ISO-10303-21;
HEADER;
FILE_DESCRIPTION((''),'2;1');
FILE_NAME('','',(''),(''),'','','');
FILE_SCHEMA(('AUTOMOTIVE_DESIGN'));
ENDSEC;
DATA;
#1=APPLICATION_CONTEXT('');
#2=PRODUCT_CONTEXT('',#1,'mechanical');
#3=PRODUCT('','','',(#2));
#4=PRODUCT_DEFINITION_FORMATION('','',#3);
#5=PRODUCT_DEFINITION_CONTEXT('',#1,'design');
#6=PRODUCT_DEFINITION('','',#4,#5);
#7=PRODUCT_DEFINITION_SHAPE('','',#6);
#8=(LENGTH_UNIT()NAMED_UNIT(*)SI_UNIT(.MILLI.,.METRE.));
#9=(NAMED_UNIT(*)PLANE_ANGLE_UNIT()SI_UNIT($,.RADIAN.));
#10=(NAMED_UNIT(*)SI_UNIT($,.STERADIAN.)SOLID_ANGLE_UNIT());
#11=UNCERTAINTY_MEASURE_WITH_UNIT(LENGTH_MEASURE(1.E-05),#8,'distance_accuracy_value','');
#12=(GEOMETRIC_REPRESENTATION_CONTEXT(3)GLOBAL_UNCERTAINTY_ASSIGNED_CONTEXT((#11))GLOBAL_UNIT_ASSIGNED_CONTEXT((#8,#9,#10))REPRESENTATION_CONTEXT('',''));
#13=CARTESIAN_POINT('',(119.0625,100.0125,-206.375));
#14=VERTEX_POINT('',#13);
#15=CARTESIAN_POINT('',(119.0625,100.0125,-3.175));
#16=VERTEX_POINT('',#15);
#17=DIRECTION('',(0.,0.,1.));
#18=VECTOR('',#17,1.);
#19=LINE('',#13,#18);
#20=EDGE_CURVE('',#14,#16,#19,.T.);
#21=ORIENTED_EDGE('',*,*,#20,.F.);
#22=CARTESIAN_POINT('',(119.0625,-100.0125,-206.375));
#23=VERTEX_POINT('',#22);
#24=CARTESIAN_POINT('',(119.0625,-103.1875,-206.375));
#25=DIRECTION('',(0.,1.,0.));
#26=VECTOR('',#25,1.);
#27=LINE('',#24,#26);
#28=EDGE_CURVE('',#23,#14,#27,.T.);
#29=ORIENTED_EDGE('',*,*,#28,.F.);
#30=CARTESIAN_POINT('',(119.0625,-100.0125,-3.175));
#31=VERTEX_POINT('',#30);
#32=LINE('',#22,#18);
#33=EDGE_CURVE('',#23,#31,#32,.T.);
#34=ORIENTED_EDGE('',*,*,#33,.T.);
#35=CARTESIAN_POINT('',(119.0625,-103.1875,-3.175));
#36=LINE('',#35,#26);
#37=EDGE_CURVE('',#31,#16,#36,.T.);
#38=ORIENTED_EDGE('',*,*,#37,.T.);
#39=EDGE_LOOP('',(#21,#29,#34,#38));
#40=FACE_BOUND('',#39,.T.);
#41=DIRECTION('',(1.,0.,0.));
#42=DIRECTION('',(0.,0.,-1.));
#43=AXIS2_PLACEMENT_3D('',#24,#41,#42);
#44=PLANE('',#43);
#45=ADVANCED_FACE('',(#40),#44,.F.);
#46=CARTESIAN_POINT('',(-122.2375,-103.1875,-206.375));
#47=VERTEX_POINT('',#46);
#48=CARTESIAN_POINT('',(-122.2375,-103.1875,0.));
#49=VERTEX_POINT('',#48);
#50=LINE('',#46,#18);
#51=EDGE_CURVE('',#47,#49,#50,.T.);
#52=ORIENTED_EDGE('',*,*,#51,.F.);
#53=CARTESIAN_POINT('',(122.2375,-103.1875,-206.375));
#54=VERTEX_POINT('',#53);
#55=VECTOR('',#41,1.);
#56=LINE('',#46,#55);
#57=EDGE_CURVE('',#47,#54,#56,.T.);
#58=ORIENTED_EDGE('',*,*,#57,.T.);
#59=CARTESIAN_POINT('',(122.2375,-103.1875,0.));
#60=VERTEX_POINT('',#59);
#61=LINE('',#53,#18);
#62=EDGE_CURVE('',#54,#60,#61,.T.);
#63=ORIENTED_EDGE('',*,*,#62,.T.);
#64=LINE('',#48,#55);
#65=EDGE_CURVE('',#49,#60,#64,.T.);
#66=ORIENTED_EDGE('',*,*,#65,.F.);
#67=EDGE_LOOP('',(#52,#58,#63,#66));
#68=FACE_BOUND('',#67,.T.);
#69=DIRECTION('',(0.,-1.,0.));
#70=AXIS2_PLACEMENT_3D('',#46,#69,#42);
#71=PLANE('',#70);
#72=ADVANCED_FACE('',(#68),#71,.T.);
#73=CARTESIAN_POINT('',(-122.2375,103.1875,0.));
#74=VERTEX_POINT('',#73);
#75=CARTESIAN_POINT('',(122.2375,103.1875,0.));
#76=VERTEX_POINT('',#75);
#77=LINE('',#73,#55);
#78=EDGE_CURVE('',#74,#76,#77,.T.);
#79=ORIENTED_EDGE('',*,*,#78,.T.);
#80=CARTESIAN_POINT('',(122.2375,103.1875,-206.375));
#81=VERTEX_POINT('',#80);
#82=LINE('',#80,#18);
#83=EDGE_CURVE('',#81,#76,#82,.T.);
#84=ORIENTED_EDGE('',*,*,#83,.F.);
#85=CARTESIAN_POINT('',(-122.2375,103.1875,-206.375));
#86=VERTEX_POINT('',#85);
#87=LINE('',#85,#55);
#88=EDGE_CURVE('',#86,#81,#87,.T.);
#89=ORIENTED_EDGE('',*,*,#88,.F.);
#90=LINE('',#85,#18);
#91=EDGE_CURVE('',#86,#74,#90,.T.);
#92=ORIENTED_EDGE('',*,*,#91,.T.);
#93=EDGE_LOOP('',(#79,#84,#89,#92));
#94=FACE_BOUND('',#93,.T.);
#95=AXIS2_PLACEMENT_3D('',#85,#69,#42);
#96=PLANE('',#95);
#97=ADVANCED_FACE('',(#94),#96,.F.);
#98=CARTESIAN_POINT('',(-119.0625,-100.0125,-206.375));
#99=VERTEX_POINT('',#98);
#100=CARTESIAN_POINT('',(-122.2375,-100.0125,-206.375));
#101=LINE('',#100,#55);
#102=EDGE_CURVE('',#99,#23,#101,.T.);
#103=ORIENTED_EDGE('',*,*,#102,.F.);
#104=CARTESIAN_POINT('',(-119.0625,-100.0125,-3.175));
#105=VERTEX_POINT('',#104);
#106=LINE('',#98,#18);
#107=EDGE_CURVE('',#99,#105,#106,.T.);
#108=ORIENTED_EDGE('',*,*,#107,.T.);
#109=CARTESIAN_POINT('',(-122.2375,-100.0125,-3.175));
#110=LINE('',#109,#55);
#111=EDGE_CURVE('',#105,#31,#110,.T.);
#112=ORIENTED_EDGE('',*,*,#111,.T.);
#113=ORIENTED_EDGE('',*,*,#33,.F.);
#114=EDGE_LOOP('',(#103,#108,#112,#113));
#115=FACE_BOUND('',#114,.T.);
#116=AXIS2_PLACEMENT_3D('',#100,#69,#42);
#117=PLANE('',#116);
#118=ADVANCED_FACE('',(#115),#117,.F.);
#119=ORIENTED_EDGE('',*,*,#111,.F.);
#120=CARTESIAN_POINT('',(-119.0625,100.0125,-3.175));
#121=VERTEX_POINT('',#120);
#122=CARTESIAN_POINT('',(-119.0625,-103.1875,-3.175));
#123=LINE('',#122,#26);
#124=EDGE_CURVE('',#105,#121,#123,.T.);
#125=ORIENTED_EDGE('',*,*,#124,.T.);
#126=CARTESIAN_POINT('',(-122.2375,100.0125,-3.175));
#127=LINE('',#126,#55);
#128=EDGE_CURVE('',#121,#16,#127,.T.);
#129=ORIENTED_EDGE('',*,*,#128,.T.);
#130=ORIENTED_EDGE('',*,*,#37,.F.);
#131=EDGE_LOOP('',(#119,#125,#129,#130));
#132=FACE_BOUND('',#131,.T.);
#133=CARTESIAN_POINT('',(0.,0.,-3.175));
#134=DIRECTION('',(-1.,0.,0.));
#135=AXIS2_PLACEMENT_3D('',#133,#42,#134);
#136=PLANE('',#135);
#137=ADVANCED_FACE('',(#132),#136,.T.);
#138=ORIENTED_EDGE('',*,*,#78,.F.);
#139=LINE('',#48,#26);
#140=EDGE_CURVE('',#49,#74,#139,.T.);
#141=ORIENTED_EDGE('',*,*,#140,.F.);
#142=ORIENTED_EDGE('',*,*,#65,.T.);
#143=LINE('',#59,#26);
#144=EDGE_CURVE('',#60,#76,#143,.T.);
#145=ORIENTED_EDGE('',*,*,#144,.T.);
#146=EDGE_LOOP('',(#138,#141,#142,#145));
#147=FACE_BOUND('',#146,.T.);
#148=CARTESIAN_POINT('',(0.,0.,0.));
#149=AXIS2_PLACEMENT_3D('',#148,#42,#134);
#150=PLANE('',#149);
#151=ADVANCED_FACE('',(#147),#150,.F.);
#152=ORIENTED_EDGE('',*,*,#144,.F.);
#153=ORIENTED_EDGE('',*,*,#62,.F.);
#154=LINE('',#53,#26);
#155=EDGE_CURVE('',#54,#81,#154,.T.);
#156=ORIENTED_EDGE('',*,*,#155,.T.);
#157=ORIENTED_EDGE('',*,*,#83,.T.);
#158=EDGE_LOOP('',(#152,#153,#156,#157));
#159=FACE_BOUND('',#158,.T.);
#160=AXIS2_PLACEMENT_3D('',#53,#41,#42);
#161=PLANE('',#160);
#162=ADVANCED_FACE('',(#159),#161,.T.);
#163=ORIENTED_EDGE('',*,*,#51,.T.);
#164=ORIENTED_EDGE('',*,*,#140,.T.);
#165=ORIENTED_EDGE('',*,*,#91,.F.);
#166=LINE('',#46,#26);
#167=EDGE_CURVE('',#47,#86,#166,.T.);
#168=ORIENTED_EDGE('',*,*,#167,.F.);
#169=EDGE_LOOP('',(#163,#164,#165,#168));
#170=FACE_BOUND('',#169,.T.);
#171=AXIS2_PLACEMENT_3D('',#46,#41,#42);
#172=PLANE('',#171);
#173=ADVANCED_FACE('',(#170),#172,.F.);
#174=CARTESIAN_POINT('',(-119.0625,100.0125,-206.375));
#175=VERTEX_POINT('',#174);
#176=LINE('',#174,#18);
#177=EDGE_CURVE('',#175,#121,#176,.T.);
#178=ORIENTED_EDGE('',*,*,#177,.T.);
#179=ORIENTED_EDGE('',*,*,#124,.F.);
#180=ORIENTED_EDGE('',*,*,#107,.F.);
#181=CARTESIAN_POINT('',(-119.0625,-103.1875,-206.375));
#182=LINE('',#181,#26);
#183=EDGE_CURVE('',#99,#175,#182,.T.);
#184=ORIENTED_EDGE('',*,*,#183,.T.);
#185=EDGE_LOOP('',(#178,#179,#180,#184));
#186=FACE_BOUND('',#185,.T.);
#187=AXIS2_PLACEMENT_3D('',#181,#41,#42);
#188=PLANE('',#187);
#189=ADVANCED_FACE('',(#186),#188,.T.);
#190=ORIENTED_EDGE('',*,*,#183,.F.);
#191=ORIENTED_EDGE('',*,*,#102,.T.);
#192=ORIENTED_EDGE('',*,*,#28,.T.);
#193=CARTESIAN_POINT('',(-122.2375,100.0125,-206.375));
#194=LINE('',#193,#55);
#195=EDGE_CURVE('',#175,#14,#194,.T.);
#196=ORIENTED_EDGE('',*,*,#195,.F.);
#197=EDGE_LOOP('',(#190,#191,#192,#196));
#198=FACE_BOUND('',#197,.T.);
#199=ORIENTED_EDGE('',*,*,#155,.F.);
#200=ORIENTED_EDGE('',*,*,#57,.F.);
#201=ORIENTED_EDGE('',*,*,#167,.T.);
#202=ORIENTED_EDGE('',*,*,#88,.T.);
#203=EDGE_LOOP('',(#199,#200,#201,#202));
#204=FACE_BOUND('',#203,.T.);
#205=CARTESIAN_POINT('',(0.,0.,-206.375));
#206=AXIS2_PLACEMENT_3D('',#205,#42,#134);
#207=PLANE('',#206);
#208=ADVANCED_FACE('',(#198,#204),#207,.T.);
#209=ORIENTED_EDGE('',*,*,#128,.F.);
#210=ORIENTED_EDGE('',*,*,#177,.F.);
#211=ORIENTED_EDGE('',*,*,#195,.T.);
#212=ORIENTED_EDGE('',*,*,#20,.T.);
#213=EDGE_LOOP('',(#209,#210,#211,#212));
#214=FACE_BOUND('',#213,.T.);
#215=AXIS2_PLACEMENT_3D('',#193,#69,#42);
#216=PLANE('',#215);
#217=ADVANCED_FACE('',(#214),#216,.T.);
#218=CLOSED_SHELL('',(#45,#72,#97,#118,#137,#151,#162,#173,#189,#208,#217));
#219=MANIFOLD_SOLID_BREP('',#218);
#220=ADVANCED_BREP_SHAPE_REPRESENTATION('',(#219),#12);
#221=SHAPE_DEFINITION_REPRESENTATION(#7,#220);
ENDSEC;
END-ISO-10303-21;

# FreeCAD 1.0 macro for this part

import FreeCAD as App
import Part
import Sketcher
Q = App.Units.Quantity


def faces_at(feature, points):
    """Names of the faces that lie closest to the given points."""
    faces = feature.Shape.Faces
    near = lambda p: min(range(len(faces)), key=lambda i: faces[i].distToShape(Part.Vertex(*p))[0])
    return sorted({f"Face{near(p) + 1}" for p in points})


def add_polygon(sketch, points):
    """Adds a closed chain of lines whose ends are joined by coincident constraints."""
    first, n = sketch.GeometryCount, len(points)
    for a, b in zip(points, points[1:] + points[:1]):
        sketch.addGeometry(Part.LineSegment(App.Vector(*a, 0), App.Vector(*b, 0)), False)
    for i in range(n):
        sketch.addConstraint(Sketcher.Constraint("Coincident", first + i, 2, first + (i + 1) % n, 1))

doc = App.newDocument("Part")
body = doc.addObject("PartDesign::Body", "Body")

# Sketch on XY plane
sketch1 = body.newObject("Sketcher::SketchObject", "Sketch")
sketch1.AttachmentSupport = (doc.getObject("XY_Plane"), [""])
sketch1.MapMode = "FlatFace"
add_polygon(sketch1, [(-122, 103), (-122, -103), (122, -103), (122, 103)])  # lines 0-3
sketch1.addConstraint([
    Sketcher.Constraint("Vertical", 0),
    Sketcher.Constraint("Horizontal", 1),
    Sketcher.Constraint("Vertical", 2),
    Sketcher.Constraint("Horizontal", 3),
    Sketcher.Constraint("Symmetric", 0, 2, 2, 2, -1, 1),
    Sketcher.Constraint("DistanceX", 1, 1, 1, 2, Q("9.625 in")),
    Sketcher.Constraint("DistanceY", 0, 2, 0, 1, Q("8.125 in")),
])
pad1 = body.newObject("PartDesign::Pad", "Pad")
pad1.Profile = sketch1
pad1.Length = Q("8.125 in")
pad1.Reversed = True
doc.recompute()

thickness = body.newObject("PartDesign::Thickness", "Thickness")
thickness.Base = (pad1, faces_at(pad1, [(0, 0, -206.375)]))
thickness.Value = Q("0.125 in")
thickness.Reversed = True
thickness.Join = "Intersection"

doc.recompute()
